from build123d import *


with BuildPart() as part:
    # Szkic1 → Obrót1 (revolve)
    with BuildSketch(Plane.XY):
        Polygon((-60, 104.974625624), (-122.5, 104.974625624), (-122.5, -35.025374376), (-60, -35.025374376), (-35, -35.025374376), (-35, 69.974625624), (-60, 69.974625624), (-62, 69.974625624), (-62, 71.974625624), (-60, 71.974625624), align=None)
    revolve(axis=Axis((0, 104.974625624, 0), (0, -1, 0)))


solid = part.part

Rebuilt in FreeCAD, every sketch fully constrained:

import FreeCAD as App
import Part
import Sketcher


def add_polygon(sketch, points):
    """Adds a closed chain of lines whose ends are joined by coincident constraints."""
    first, n = sketch.GeometryCount, len(points)
    for a, b in zip(points, points[1:] + points[:1]):
        sketch.addGeometry(Part.LineSegment(App.Vector(*a, 0), App.Vector(*b, 0)), False)
    for i in range(n):
        sketch.addConstraint(Sketcher.Constraint("Coincident", first + i, 2, first + (i + 1) % n, 1))

doc = App.newDocument("Part")
body = doc.addObject("PartDesign::Body", "Body")

# Sketch on XY plane
sketch1 = body.newObject("Sketcher::SketchObject", "Sketch")
sketch1.AttachmentSupport = (doc.getObject("XY_Plane"), [""])
sketch1.MapMode = "FlatFace"
add_polygon(sketch1, [(-60, 105), (-122.5, 105), (-122.5, -35), (-35, -35), (-35, 70), (-62, 70), (-62, 72), (-60, 72)])  # lines 0-7
sketch1.addConstraint(Sketcher.Constraint("Horizontal", 0))
sketch1.addConstraint(Sketcher.Constraint("Vertical", 1))
sketch1.addConstraint(Sketcher.Constraint("Horizontal", 2))
sketch1.addConstraint(Sketcher.Constraint("Vertical", 3))
sketch1.addConstraint(Sketcher.Constraint("Horizontal", 4))
sketch1.addConstraint(Sketcher.Constraint("Vertical", 5))
sketch1.addConstraint(Sketcher.Constraint("Horizontal", 6))
sketch1.addConstraint(Sketcher.Constraint("Vertical", 7))
sketch1.addConstraint(Sketcher.Constraint("Equal", 6, 5))
sketch1.addConstraint(Sketcher.Constraint("DistanceX", 4, 2, 4, 1, 27.0))
sketch1.addConstraint(Sketcher.Constraint("DistanceX", 6, 1, 6, 2, 2.0))
sketch1.addConstraint(Sketcher.Constraint("DistanceY", 1, 2, 1, 1, 140.0))
sketch1.addConstraint(Sketcher.Constraint("DistanceY", 3, 1, 3, 2, 105.0))
sketch1.addConstraint(Sketcher.Constraint("DistanceX", 0, 2, 0, 1, 62.5))
sketch1.addConstraint(Sketcher.Constraint("DistanceX", 2, 2, -1, 1, 35.0))
sketch1.addConstraint(Sketcher.Constraint("DistanceY", -1, 1, 0, 2, 104.974626))
revolution = body.newObject("PartDesign::Revolution", "Revolution")
revolution.Profile = sketch1
revolution.ReferenceAxis = (sketch1, ["V_Axis"])
revolution.Angle = 360

doc.recompute()
